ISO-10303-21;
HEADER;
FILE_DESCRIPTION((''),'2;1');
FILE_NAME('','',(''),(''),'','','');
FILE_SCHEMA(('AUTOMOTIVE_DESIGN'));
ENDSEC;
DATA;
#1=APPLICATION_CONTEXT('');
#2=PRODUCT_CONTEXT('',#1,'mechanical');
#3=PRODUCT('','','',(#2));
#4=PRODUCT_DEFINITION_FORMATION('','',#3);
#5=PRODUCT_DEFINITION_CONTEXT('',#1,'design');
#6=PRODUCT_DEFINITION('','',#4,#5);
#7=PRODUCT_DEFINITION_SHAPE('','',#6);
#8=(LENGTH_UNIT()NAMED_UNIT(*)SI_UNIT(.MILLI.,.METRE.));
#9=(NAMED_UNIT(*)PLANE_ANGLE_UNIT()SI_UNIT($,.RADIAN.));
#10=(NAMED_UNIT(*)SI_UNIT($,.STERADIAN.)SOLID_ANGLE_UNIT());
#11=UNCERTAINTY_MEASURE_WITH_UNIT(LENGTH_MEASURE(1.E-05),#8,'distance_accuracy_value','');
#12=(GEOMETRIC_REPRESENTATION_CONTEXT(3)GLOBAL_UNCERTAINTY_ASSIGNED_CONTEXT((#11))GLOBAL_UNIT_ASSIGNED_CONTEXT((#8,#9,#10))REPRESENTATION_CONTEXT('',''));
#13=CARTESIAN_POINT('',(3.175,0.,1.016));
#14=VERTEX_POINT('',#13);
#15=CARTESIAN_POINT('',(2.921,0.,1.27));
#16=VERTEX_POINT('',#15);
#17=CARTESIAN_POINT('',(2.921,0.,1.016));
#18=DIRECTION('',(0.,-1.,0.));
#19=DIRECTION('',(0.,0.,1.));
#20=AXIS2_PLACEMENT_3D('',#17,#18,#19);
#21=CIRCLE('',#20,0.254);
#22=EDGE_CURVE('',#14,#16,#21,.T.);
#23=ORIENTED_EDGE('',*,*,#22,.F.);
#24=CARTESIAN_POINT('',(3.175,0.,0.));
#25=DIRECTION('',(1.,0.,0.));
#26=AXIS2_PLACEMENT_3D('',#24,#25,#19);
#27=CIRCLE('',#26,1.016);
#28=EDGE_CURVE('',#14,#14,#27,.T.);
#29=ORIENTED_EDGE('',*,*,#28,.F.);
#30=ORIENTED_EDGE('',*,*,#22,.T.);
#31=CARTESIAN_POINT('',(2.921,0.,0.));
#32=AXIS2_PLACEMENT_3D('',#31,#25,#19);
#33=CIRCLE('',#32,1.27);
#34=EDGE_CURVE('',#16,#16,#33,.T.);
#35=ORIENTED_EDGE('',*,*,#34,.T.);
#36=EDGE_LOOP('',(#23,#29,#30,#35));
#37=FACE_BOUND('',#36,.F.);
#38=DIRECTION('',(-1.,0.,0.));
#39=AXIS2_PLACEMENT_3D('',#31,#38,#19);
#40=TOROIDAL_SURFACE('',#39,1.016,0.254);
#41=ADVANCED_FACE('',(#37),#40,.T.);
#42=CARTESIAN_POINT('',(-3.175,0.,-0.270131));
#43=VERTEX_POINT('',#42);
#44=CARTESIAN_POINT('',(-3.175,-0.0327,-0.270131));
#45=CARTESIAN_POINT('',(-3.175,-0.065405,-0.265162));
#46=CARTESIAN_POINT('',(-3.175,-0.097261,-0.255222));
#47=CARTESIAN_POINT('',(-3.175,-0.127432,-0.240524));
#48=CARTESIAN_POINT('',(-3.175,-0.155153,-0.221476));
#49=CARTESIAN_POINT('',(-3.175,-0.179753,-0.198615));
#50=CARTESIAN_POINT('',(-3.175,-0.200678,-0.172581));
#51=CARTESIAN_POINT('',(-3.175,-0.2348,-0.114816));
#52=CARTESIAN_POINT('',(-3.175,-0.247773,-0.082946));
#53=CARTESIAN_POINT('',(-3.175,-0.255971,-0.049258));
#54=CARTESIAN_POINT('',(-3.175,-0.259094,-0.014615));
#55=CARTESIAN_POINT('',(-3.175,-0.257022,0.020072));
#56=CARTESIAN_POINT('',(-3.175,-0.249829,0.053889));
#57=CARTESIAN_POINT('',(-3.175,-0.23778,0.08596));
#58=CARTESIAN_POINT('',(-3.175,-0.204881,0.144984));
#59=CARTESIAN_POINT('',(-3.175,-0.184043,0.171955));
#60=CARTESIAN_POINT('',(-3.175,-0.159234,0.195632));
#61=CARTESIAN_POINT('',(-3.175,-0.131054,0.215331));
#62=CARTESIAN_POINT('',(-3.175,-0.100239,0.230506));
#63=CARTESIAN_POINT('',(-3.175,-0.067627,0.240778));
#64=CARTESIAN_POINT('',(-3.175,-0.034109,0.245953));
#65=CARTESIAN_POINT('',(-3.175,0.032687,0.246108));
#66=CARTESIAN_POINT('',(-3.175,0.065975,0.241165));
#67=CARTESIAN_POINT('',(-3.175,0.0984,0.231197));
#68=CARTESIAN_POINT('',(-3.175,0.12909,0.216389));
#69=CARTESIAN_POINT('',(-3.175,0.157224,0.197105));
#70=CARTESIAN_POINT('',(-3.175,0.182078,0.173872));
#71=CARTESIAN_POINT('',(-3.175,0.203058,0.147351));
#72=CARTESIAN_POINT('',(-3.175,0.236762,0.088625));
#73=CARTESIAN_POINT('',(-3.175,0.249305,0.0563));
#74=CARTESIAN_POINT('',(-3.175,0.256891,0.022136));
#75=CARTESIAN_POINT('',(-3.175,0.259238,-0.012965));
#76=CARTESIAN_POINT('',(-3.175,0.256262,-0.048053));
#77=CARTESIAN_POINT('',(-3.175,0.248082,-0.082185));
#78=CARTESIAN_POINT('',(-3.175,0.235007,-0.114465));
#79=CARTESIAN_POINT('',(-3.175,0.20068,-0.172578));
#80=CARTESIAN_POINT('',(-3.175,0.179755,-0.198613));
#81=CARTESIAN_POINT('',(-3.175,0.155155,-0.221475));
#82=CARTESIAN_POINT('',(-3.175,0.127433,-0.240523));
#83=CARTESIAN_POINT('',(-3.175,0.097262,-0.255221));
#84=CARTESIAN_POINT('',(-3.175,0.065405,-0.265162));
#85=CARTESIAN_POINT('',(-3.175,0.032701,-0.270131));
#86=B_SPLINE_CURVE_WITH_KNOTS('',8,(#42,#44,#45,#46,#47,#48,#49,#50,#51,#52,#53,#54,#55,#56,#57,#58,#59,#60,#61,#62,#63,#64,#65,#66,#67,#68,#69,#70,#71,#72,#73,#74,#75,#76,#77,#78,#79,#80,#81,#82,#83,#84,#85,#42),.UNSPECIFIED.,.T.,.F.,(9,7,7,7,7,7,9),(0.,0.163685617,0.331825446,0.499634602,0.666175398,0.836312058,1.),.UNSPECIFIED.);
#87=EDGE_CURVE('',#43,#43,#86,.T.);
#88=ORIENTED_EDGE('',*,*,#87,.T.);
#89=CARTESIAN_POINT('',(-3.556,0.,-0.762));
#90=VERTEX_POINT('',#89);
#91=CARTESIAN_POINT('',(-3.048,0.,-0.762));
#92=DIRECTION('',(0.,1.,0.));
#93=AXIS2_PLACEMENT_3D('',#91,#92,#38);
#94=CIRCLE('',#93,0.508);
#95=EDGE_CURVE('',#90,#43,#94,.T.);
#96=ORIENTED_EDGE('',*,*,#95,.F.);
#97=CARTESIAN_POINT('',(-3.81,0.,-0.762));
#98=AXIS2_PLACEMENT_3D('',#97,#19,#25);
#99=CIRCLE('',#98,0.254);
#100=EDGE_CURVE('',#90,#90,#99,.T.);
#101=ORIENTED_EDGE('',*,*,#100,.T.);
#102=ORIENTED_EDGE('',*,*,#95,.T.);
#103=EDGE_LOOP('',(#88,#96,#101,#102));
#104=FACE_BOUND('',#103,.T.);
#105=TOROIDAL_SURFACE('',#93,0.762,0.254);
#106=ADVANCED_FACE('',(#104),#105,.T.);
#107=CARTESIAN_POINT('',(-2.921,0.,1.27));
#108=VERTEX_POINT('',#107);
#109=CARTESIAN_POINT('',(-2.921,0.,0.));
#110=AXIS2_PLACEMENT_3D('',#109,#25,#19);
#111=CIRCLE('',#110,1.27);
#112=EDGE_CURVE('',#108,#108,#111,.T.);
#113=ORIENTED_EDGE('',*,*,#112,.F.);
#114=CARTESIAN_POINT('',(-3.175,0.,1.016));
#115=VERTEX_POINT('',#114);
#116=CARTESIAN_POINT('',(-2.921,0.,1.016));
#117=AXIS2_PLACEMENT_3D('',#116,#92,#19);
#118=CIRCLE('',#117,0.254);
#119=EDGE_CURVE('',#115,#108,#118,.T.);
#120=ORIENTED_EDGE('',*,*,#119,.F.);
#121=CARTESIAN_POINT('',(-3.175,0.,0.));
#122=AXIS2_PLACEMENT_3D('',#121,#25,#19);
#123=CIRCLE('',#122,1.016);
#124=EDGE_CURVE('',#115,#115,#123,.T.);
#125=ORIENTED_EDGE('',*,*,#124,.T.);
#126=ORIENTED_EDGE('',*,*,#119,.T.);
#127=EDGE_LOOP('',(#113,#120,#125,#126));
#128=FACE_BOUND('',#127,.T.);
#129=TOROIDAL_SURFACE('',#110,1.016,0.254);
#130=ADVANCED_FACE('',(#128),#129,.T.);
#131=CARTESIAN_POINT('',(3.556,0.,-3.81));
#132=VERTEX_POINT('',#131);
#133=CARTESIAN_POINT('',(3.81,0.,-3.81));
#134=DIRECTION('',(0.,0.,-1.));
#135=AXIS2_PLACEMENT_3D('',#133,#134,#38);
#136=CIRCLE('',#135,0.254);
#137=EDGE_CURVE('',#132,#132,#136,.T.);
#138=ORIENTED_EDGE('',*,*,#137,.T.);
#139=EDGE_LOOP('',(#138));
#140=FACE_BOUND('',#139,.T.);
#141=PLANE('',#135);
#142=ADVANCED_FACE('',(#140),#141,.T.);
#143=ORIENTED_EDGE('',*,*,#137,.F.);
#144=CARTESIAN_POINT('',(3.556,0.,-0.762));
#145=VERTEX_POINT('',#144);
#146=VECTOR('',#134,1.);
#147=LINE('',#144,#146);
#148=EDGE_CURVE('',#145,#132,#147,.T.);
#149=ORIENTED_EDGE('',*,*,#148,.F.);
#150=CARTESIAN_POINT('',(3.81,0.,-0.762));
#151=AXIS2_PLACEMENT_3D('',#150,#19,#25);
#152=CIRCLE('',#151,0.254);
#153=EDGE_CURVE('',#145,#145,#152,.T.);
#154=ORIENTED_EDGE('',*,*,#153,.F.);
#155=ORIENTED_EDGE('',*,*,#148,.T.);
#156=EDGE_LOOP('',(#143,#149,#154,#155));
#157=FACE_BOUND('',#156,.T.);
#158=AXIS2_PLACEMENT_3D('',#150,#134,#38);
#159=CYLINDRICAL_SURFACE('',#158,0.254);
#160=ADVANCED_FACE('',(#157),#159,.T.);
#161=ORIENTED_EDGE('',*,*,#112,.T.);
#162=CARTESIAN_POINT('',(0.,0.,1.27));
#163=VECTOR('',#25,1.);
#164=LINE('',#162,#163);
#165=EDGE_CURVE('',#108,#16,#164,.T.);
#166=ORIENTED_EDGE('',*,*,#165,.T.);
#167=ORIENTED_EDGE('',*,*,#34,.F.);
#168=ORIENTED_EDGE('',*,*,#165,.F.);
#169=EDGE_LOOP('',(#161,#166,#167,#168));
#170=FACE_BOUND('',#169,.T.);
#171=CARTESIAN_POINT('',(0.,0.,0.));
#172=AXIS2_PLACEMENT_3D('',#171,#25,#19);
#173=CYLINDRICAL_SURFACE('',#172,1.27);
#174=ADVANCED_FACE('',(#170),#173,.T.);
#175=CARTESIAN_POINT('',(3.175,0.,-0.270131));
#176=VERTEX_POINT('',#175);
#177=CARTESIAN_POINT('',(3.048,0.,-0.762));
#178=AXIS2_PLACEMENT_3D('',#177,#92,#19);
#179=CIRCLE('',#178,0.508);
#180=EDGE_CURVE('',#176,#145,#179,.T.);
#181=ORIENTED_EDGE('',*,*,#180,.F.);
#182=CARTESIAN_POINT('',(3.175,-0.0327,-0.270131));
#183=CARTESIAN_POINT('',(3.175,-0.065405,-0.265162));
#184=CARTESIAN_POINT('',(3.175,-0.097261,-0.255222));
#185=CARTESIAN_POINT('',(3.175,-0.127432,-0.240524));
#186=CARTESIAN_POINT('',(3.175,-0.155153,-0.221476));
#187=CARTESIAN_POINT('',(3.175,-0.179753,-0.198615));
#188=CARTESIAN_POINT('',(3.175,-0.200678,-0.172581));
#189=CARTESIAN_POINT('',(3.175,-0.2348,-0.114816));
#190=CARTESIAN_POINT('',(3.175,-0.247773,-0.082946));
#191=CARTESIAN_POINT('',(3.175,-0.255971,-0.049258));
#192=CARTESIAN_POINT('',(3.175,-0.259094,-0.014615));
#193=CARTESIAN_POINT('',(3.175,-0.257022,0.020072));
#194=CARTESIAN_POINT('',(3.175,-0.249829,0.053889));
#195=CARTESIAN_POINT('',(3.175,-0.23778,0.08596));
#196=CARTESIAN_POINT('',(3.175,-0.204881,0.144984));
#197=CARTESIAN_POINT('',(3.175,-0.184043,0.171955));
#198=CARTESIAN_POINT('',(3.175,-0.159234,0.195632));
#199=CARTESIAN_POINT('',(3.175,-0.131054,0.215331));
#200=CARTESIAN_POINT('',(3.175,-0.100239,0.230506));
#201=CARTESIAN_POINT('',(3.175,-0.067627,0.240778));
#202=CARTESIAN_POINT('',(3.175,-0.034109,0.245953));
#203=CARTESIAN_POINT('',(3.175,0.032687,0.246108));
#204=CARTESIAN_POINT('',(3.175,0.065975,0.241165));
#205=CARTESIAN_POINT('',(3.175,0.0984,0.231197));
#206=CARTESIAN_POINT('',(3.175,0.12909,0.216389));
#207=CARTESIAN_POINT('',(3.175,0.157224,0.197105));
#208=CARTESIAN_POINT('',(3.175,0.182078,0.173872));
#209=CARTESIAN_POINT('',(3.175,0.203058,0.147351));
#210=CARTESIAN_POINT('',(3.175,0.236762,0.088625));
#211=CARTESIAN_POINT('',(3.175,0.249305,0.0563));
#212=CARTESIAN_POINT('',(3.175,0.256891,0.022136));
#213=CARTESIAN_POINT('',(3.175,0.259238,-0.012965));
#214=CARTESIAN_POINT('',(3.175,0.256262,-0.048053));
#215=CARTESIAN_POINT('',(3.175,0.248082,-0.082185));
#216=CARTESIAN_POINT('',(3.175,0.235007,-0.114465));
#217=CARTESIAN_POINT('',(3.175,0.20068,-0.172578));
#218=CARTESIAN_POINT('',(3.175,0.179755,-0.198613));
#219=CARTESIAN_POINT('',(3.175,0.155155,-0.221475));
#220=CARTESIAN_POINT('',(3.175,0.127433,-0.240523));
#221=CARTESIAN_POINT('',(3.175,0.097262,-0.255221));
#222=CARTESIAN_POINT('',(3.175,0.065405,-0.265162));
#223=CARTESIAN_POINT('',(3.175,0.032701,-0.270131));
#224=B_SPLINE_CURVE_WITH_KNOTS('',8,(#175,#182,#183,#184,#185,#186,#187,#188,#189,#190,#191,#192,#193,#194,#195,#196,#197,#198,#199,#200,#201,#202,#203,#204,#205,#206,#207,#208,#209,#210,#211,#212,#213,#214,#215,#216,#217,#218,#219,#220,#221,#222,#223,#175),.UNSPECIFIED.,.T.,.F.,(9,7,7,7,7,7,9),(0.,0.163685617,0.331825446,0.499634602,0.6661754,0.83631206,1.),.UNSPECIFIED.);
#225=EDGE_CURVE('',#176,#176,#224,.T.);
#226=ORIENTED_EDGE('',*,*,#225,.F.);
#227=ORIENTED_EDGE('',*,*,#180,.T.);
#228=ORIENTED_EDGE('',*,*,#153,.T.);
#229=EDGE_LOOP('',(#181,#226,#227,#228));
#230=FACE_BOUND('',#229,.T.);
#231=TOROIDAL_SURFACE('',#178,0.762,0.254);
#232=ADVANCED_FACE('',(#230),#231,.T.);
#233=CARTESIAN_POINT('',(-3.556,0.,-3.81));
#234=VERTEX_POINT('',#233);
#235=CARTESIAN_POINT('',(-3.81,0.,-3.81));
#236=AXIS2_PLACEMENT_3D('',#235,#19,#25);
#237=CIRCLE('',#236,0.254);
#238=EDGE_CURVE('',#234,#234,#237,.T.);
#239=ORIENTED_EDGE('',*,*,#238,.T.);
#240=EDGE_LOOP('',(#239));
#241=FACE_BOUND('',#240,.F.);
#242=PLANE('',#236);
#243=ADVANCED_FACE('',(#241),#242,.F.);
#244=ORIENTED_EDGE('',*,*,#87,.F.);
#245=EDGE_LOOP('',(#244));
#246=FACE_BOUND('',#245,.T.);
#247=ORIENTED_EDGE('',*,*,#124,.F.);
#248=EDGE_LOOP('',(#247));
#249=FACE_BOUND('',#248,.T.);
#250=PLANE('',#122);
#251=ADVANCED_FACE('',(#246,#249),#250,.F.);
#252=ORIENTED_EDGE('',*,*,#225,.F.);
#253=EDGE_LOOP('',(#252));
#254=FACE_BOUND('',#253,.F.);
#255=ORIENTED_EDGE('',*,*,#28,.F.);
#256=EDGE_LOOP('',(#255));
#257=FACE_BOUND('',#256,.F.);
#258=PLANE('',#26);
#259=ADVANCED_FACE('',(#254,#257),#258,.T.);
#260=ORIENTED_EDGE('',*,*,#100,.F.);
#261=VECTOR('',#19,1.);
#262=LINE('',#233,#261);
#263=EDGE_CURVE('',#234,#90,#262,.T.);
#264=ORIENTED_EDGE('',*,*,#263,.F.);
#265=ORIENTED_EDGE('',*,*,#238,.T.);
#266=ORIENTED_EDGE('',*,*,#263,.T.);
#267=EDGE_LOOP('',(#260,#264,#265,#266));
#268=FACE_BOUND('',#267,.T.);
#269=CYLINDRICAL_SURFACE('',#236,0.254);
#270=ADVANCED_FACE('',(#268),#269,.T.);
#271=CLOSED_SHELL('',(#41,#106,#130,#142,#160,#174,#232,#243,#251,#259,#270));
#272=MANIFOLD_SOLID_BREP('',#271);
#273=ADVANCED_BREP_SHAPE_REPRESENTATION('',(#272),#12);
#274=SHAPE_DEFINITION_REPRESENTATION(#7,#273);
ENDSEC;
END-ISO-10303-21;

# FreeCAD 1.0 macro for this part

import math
import FreeCAD as App
import Part
import Sketcher

V = App.Vector
Q = App.Units.Quantity


def edges_at(feature, points):
    """Names of the edges that pass closest to the given points."""
    edges = feature.Shape.Edges
    near = lambda p: min(range(len(edges)), key=lambda i: edges[i].distToShape(Part.Vertex(*p))[0])
    return sorted({f"Edge{near(p) + 1}" for p in points})


def add_polygon(sketch, points):
    """Adds a closed chain of lines whose ends are joined by coincident constraints."""
    first, n = sketch.GeometryCount, len(points)
    for a, b in zip(points, points[1:] + points[:1]):
        sketch.addGeometry(Part.LineSegment(App.Vector(*a, 0), App.Vector(*b, 0)), False)
    for i in range(n):
        sketch.addConstraint(Sketcher.Constraint("Coincident", first + i, 2, first + (i + 1) % n, 1))

doc = App.newDocument("Part")
body = doc.addObject("PartDesign::Body", "Body")

# Sketch on XZ plane
sketch1 = body.newObject("Sketcher::SketchObject", "Sketch")
sketch1.AttachmentSupport = (doc.getObject("XZ_Plane"), [""])
sketch1.MapMode = "FlatFace"
add_polygon(sketch1, [(-3.2, 1.3), (-3.2, 0), (3.2, 0), (3.2, 1.3)])  # lines 0-3
sketch1.addConstraint([
    Sketcher.Constraint("Vertical", 0),
    Sketcher.Constraint("Horizontal", 1),
    Sketcher.Constraint("Vertical", 2),
    Sketcher.Constraint("Horizontal", 3),
    Sketcher.Constraint("Symmetric", 0, 2, 1, 2, -1, 1),
    Sketcher.Constraint("DistanceX", 1, 1, 1, 2, Q("0.25 in")),
    Sketcher.Constraint("DistanceY", 0, 2, 0, 1, Q("0.05 in")),
])
revolution = body.newObject("PartDesign::Revolution", "Revolution")
revolution.Profile = sketch1
revolution.ReferenceAxis = (sketch1, ["H_Axis"])
revolution.Angle = 360
doc.recompute()

fillet = body.newObject("PartDesign::Fillet", "Fillet")
fillet.Base = (revolution, edges_at(revolution, [(3.175, 0, -1.27), (-3.175, 0, -1.27)]))
fillet.Radius = Q("0.01 in")

# Sketch on XY plane
sketch2 = body.newObject("Sketcher::SketchObject", "Sketch001")
sketch2.AttachmentSupport = (doc.getObject("XY_Plane"), [""])
sketch2.MapMode = "FlatFace"
sketch2.AttachmentOffset = App.Placement(V(0, 0, -0.15 * 25.4), App.Rotation())
sketch2.addGeometry(Part.Circle(V(-3.81, 0, 0), V(0, 0, 1), 0.25), False)
sketch2.addConstraint([
    Sketcher.Constraint("PointOnObject", 0, 3, -1),
    Sketcher.Constraint("Diameter", 0, Q("0.02 in")),
    Sketcher.Constraint("DistanceX", 0, 3, -1, 1, Q("0.15 in")),
])

# Sketch on XZ plane
sketch3 = body.newObject("Sketcher::SketchObject", "Sketch002")
sketch3.AttachmentSupport = (doc.getObject("XZ_Plane"), [""])
sketch3.MapMode = "FlatFace"
sketch3.addGeometry([
    Part.LineSegment(V(-3.8, -3.8, 0), V(-3.8, -0.8, 0)),  # 0
    Part.ArcOfCircle(Part.Circle(V(-3, -0.8, 0), V(0, 0, 1), 0.8), math.radians(90), math.radians(180)),  # 1
    Part.LineSegment(V(-3, 0, 0), V(3, 0, 0)),  # 2
    Part.ArcOfCircle(Part.Circle(V(3, -0.8, 0), V(0, 0, 1), 0.8), math.radians(0), math.radians(90)),  # 3
    Part.LineSegment(V(3.8, -0.8, 0), V(3.8, -3.8, 0)),  # 4
], False)
sketch3.addConstraint([
    Sketcher.Constraint("Tangent", 0, 2, 1, 2),
    Sketcher.Constraint("Tangent", 1, 1, 2, 1),
    Sketcher.Constraint("Tangent", 2, 2, 3, 2),
    Sketcher.Constraint("Tangent", 3, 1, 4, 1),
    Sketcher.Constraint("Vertical", 0),
    Sketcher.Constraint("Horizontal", 2),
    Sketcher.Constraint("Vertical", 4),
    Sketcher.Constraint("Equal", 1, 3),
    Sketcher.Constraint("Symmetric", 1, 1, 2, 2, -1, 1),
    Sketcher.Constraint("Horizontal", 0, 1, 4, 2),
    Sketcher.Constraint("Radius", 1, Q("0.03 in")),
    Sketcher.Constraint("DistanceX", 2, 1, 2, 2, Q("0.24 in")),
    Sketcher.Constraint("DistanceY", 0, 1, 0, 2, Q("0.12 in")),
])
doc.recompute()

additivepipe = body.newObject("PartDesign::AdditivePipe", "AdditivePipe")
additivepipe.Profile = sketch2
additivepipe.Spine = (sketch3, ["Edge1", "Edge2", "Edge3", "Edge4", "Edge5"])

doc.recompute()
